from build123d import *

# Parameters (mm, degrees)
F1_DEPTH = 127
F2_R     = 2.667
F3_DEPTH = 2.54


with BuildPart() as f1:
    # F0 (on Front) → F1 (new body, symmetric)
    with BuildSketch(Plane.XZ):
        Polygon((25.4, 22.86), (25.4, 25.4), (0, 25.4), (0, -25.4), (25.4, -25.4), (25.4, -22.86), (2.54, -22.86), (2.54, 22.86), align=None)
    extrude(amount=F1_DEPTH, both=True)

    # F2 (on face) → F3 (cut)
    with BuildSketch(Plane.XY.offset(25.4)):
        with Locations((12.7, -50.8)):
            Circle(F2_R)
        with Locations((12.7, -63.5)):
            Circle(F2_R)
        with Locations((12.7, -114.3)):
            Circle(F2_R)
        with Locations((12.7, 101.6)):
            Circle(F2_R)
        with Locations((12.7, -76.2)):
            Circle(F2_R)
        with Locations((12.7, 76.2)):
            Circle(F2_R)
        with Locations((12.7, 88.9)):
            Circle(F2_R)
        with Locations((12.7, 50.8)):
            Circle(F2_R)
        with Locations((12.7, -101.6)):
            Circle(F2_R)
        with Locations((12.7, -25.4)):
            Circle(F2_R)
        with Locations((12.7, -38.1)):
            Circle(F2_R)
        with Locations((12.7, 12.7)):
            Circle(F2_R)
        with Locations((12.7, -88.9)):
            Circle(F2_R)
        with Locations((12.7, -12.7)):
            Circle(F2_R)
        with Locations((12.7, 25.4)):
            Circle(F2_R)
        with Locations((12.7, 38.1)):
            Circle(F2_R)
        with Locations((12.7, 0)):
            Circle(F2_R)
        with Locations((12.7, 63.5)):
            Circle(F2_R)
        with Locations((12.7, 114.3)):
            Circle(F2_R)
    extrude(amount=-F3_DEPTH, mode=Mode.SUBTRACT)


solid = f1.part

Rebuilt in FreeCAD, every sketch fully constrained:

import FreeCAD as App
import Part
import Sketcher
from FreeCAD import Vector
Q = App.Units.Quantity

doc = App.newDocument("Part")
body = doc.addObject("PartDesign::Body", "Body")

sketch1 = doc.addObject("Sketcher::SketchObject", "Sketch")
body.addObject(sketch1)
sketch1.AttachmentSupport = (doc.XZ_Plane, [""])
sketch1.MapMode = "FlatFace"
sketch1.addGeometry([
    Part.LineSegment(Vector(25.4, 22.9, 0), Vector(25.4, 25.4, 0)),
    Part.LineSegment(Vector(25.4, 25.4, 0), Vector(0, 25.4, 0)),
    Part.LineSegment(Vector(0, 25.4, 0), Vector(0, -25.4, 0)),
    Part.LineSegment(Vector(0, -25.4, 0), Vector(25.4, -25.4, 0)),
    Part.LineSegment(Vector(25.4, -25.4, 0), Vector(25.4, -22.9, 0)),
    Part.LineSegment(Vector(25.4, -22.9, 0), Vector(2.5, -22.9, 0)),
    Part.LineSegment(Vector(2.5, -22.9, 0), Vector(2.5, 22.9, 0)),
    Part.LineSegment(Vector(2.5, 22.9, 0), Vector(25.4, 22.9, 0)),
], False)
sketch1.addConstraint([
    Sketcher.Constraint("Coincident", 0, 2, 1, 1),
    Sketcher.Constraint("Coincident", 1, 2, 2, 1),
    Sketcher.Constraint("Coincident", 2, 2, 3, 1),
    Sketcher.Constraint("Coincident", 3, 2, 4, 1),
    Sketcher.Constraint("Coincident", 4, 2, 5, 1),
    Sketcher.Constraint("Coincident", 5, 2, 6, 1),
    Sketcher.Constraint("Coincident", 6, 2, 7, 1),
    Sketcher.Constraint("Coincident", 7, 2, 0, 1),
    Sketcher.Constraint("Vertical", 0),
    Sketcher.Constraint("Horizontal", 1),
    Sketcher.Constraint("Vertical", 2),
    Sketcher.Constraint("Horizontal", 3),
    Sketcher.Constraint("Vertical", 4),
    Sketcher.Constraint("Horizontal", 5),
    Sketcher.Constraint("Vertical", 6),
    Sketcher.Constraint("Horizontal", 7),
    Sketcher.Constraint("Symmetric", 1, 2, 2, 2, -1, 1),
    Sketcher.Constraint("Symmetric", 4, 2, 7, 2, -1),
    Sketcher.Constraint("DistanceX", 1, 2, 1, 1, Q("1 in")),
    Sketcher.Constraint("DistanceY", 2, 2, 2, 1, Q("2 in")),
    Sketcher.Constraint("DistanceX", 5, 2, 5, 1, Q("0.9 in")),
    Sketcher.Constraint("DistanceY", 0, 1, 0, 2, Q("0.1 in")),
])
pad1 = doc.addObject("PartDesign::Pad", "Pad")
body.addObject(pad1)
pad1.Profile = sketch1
pad1.Length = Q("10 in")
pad1.Midplane = True

sketch2 = doc.addObject("Sketcher::SketchObject", "Sketch001")
body.addObject(sketch2)
sketch2.AttachmentSupport = (doc.XY_Plane, [""])
sketch2.MapMode = "FlatFace"
sketch2.AttachmentOffset = App.Placement(Vector(0, 0, 1 * 25.4), App.Rotation())
sketch2.addGeometry([
    Part.Circle(Vector(12.7, -50.8, 0), Vector(0, 0, 1), 2.7),
    Part.Circle(Vector(12.7, -63.5, 0), Vector(0, 0, 1), 2.7),
    Part.Circle(Vector(12.7, -114.3, 0), Vector(0, 0, 1), 2.7),
    Part.Circle(Vector(12.7, 101.6, 0), Vector(0, 0, 1), 2.7),
    Part.Circle(Vector(12.7, -76.2, 0), Vector(0, 0, 1), 2.7),
    Part.Circle(Vector(12.7, 76.2, 0), Vector(0, 0, 1), 2.7),
    Part.Circle(Vector(12.7, 88.9, 0), Vector(0, 0, 1), 2.7),
    Part.Circle(Vector(12.7, 50.8, 0), Vector(0, 0, 1), 2.7),
    Part.Circle(Vector(12.7, -101.6, 0), Vector(0, 0, 1), 2.7),
    Part.Circle(Vector(12.7, -25.4, 0), Vector(0, 0, 1), 2.7),
    Part.Circle(Vector(12.7, -38.1, 0), Vector(0, 0, 1), 2.7),
    Part.Circle(Vector(12.7, 12.7, 0), Vector(0, 0, 1), 2.7),
    Part.Circle(Vector(12.7, -88.9, 0), Vector(0, 0, 1), 2.7),
    Part.Circle(Vector(12.7, -12.7, 0), Vector(0, 0, 1), 2.7),
    Part.Circle(Vector(12.7, 25.4, 0), Vector(0, 0, 1), 2.7),
    Part.Circle(Vector(12.7, 38.1, 0), Vector(0, 0, 1), 2.7),
    Part.Circle(Vector(12.7, 0, 0), Vector(0, 0, 1), 2.7),
    Part.Circle(Vector(12.7, 63.5, 0), Vector(0, 0, 1), 2.7),
    Part.Circle(Vector(12.7, 114.3, 0), Vector(0, 0, 1), 2.7),
], False)
sketch2.addConstraint([
    Sketcher.Constraint("Equal", 0, 1),
    Sketcher.Constraint("Equal", 1, 2),
    Sketcher.Constraint("Equal", 2, 3),
    Sketcher.Constraint("Equal", 3, 4),
    Sketcher.Constraint("Equal", 4, 5),
    Sketcher.Constraint("Equal", 5, 6),
    Sketcher.Constraint("Equal", 6, 7),
    Sketcher.Constraint("Equal", 7, 8),
    Sketcher.Constraint("Equal", 8, 9),
    Sketcher.Constraint("Equal", 9, 10),
    Sketcher.Constraint("Equal", 10, 11),
    Sketcher.Constraint("Equal", 11, 12),
    Sketcher.Constraint("Equal", 12, 13),
    Sketcher.Constraint("Equal", 13, 14),
    Sketcher.Constraint("Equal", 14, 15),
    Sketcher.Constraint("Equal", 15, 16),
    Sketcher.Constraint("Equal", 16, 17),
    Sketcher.Constraint("Equal", 17, 18),
    Sketcher.Constraint("Symmetric", 4, 3, 5, 3, -1),
    Sketcher.Constraint("Symmetric", 0, 3, 7, 3, -1),
    Sketcher.Constraint("Symmetric", 3, 3, 8, 3, -1),
    Sketcher.Constraint("Symmetric", 6, 3, 12, 3, -1),
    Sketcher.Constraint("Symmetric", 11, 3, 13, 3, -1),
    Sketcher.Constraint("Symmetric", 9, 3, 14, 3, -1),
    Sketcher.Constraint("Symmetric", 10, 3, 15, 3, -1),
    Sketcher.Constraint("Symmetric", 1, 3, 17, 3, -1),
    Sketcher.Constraint("Symmetric", 2, 3, 18, 3, -1),
    Sketcher.Constraint("PointOnObject", 16, 3, -1),
    Sketcher.Constraint("Vertical", 0, 3, 1, 3),
    Sketcher.Constraint("Vertical", 1, 3, 2, 3),
    Sketcher.Constraint("Vertical", 2, 3, 3, 3),
    Sketcher.Constraint("Vertical", 3, 3, 4, 3),
    Sketcher.Constraint("Vertical", 5, 3, 6, 3),
    Sketcher.Constraint("Vertical", 8, 3, 9, 3),
    Sketcher.Constraint("Vertical", 9, 3, 10, 3),
    Sketcher.Constraint("Vertical", 10, 3, 11, 3),
    Sketcher.Constraint("Vertical", 15, 3, 16, 3),
    Sketcher.Constraint("Diameter", 0, Q("0.21 in")),
    Sketcher.Constraint("DistanceY", 0, 3, -1, 1, Q("2 in")),
    Sketcher.Constraint("DistanceY", -1, 1, 3, 3, Q("4 in")),
    Sketcher.Constraint("DistanceY", 4, 3, -1, 1, Q("3 in")),
    Sketcher.Constraint("DistanceY", 9, 3, -1, 1, Q("1 in")),
    Sketcher.Constraint("DistanceY", 2, 3, 1, 3, Q("2 in")),
    Sketcher.Constraint("DistanceY", 1, 3, 6, 3, Q("6 in")),
    Sketcher.Constraint("DistanceY", 1, 3, 10, 3, Q("1 in")),
    Sketcher.Constraint("DistanceY", 10, 3, 11, 3, Q("2 in")),
    Sketcher.Constraint("DistanceY", 2, 3, 12, 3, Q("1 in")),
    Sketcher.Constraint("DistanceX", -1, 1, 0, 3, Q("0.5 in")),
])
pocket1 = doc.addObject("PartDesign::Pocket", "Pocket")
body.addObject(pocket1)
pocket1.Profile = sketch2
pocket1.Length = Q("0.1 in")

doc.recompute()
